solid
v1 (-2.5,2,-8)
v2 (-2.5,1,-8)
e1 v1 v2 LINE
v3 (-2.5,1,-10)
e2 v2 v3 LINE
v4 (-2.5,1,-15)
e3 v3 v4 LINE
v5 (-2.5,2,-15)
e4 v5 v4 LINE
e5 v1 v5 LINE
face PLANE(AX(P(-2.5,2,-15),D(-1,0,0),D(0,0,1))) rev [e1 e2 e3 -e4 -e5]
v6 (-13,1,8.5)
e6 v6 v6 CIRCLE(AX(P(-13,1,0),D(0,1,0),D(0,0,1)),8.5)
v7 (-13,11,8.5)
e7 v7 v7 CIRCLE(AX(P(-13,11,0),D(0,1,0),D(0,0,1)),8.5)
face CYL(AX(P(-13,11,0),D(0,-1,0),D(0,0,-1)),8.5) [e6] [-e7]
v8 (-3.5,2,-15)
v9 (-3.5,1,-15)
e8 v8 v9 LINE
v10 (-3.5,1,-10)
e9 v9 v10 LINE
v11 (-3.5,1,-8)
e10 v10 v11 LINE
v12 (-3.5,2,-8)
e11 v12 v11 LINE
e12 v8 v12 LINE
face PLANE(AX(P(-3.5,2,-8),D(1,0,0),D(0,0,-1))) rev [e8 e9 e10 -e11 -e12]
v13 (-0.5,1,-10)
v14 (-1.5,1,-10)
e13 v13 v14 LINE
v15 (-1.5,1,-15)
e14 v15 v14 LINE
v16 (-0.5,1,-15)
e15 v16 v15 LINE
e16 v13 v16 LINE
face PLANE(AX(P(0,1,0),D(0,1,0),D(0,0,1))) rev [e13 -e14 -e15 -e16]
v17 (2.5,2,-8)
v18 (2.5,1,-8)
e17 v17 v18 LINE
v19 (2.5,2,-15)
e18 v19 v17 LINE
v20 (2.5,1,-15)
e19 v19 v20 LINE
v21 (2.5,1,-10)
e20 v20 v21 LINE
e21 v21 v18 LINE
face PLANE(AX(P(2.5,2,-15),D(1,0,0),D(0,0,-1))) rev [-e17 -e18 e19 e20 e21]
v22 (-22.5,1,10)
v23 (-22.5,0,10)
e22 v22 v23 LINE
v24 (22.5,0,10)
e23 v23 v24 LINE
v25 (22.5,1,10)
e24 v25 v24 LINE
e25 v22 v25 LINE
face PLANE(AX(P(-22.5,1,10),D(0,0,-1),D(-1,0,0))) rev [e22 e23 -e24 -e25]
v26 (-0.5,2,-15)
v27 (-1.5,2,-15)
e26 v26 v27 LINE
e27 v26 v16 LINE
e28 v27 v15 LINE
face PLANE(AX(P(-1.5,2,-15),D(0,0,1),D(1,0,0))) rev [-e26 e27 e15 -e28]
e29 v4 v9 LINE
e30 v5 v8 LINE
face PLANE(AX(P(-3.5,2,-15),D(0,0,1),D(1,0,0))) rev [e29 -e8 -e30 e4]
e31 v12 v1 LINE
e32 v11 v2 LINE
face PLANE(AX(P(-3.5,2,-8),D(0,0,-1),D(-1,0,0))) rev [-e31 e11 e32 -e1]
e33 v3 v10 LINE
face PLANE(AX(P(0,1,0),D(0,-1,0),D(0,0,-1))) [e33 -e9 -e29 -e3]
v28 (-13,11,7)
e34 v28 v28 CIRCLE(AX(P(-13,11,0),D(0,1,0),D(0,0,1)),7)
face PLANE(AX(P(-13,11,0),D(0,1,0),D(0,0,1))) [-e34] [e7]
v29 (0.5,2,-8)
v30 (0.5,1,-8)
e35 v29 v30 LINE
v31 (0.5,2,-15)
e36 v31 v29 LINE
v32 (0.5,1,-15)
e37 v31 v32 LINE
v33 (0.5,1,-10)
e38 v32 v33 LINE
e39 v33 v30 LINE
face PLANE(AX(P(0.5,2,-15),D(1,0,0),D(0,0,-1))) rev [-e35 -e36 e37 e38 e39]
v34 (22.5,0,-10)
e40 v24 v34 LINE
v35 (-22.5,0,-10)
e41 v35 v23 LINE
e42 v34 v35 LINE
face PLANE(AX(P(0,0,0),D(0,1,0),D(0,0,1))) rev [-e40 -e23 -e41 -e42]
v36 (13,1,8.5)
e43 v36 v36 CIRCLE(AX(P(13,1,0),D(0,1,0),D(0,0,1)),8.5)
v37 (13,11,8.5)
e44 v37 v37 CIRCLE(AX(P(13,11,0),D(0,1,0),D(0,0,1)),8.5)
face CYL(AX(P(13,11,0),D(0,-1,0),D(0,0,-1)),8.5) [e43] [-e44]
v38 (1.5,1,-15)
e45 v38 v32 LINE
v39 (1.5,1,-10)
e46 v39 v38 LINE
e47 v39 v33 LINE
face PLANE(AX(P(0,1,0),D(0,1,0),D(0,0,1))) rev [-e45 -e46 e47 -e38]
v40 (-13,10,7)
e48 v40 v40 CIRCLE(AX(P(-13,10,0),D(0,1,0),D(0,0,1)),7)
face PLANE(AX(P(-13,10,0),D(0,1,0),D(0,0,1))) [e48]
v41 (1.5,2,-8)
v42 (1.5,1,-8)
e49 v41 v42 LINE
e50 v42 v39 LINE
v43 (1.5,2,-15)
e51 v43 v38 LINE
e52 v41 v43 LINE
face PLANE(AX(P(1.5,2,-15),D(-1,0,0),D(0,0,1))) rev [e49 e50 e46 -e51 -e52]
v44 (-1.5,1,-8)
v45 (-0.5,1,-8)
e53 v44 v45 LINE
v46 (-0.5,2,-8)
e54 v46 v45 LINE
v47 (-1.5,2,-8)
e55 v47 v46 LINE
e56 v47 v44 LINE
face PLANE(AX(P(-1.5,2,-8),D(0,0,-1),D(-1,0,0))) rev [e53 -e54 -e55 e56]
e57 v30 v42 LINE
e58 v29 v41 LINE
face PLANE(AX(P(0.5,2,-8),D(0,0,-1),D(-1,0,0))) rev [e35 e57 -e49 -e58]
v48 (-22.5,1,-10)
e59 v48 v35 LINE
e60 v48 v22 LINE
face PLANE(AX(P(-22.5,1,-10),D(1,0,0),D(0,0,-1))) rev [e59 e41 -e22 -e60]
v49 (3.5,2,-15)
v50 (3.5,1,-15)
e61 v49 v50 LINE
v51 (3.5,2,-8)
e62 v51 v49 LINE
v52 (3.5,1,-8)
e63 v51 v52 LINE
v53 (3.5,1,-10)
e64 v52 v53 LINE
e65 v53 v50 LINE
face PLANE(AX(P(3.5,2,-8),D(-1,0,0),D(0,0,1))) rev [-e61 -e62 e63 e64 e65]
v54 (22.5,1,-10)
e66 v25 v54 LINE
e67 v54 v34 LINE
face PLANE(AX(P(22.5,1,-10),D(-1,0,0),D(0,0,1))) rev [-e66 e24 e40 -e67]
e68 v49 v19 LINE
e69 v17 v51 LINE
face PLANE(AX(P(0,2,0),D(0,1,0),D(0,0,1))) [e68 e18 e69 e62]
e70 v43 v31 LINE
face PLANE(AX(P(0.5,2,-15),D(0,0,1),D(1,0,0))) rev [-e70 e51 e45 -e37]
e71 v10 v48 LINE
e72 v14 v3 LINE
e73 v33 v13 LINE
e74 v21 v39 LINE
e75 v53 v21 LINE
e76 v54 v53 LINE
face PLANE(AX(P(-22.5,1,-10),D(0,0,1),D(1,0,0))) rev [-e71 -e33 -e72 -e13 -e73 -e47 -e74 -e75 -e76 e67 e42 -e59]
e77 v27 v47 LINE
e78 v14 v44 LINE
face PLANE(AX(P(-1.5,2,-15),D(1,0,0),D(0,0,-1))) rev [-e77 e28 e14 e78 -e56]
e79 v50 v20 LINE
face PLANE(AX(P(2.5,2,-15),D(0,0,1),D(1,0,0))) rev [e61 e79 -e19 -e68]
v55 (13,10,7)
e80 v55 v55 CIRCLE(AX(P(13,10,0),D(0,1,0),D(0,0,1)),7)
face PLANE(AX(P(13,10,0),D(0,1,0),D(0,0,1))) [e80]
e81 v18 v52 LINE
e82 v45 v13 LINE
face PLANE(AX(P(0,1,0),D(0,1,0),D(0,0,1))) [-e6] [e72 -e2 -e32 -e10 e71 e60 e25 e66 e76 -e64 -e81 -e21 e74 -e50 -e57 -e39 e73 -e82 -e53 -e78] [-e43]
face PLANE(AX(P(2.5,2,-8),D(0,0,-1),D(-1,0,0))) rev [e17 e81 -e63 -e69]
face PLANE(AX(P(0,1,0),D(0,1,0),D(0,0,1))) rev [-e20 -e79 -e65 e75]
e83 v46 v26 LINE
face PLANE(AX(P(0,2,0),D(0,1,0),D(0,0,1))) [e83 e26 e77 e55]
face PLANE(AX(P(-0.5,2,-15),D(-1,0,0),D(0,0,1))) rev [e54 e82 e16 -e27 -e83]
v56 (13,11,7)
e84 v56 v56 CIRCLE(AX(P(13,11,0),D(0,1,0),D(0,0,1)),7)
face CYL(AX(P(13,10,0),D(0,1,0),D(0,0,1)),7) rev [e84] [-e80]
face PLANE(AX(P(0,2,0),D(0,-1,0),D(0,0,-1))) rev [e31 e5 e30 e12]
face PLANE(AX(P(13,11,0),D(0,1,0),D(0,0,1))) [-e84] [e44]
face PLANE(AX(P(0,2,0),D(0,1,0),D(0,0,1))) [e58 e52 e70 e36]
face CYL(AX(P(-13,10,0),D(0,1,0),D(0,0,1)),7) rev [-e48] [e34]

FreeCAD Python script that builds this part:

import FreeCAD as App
import Part
import Sketcher
from FreeCAD import Vector
Q = App.Units.Quantity


def add_polygon(sketch, points):
    """Adds a closed chain of lines whose ends are joined by coincident constraints."""
    first, n = sketch.GeometryCount, len(points)
    for a, b in zip(points, points[1:] + points[:1]):
        sketch.addGeometry(Part.LineSegment(App.Vector(*a, 0), App.Vector(*b, 0)), False)
    for i in range(n):
        sketch.addConstraint(Sketcher.Constraint("Coincident", first + i, 2, first + (i + 1) % n, 1))

doc = App.newDocument("Part")
params = doc.addObject("Spreadsheet::Sheet", "Params")
for row, (alias, value) in enumerate([
    ("sketch1_width", "45 mm"),
    ("sketch1_height", "20 mm"),
    ("pad1_length", "1 mm"),
    ("sketch2_diameter", "17 mm"),
    ("pad2_length", "10 mm"),
    ("sketch3_diameter", "14 mm"),
    ("pocket1_length", "1 mm"),
    ("sketch4_width", "1 mm"),
    ("sketch4_height", "7 mm"),
    ("pad3_length", "1 mm"),
], start=1):
    params.set(f"A{row}", alias)
    params.set(f"B{row}", "=" + value)
    params.setAlias(f"B{row}", alias)

body = doc.addObject("PartDesign::Body", "Body")

sketch1 = body.newObject("Sketcher::SketchObject", "Sketch")
sketch1.AttachmentSupport = (doc.getObject("XZ_Plane"), [""])
sketch1.MapMode = "FlatFace"
add_polygon(sketch1, [(-22.5, -10), (-22.5, 10), (22.5, 10), (22.5, -10)])
sketch1.addConstraint([
    Sketcher.Constraint("Vertical", 0),
    Sketcher.Constraint("Horizontal", 1),
    Sketcher.Constraint("Vertical", 2),
    Sketcher.Constraint("Horizontal", 3),
    Sketcher.Constraint("Symmetric", 0, 2, 2, 2, -1, 1),
    Sketcher.Constraint("DistanceX", 1, 1, 1, 2, Q("45 mm")),
    Sketcher.Constraint("DistanceY", 0, 1, 0, 2, Q("20 mm")),
])
sketch1.setExpression("Constraints[9]", "Params.sketch1_width")
sketch1.setExpression("Constraints[10]", "Params.sketch1_height")
pad1 = body.newObject("PartDesign::Pad", "Pad")
pad1.Profile = sketch1
pad1.setExpression("Length", "Params.pad1_length")
pad1.Reversed = True

sketch2 = body.newObject("Sketcher::SketchObject", "Sketch001")
sketch2.AttachmentSupport = (doc.getObject("XZ_Plane"), [""])
sketch2.MapMode = "FlatFace"
sketch2.AttachmentOffset = App.Placement(Vector(0, 0, -1), App.Rotation())
sketch2.addGeometry([
    Part.Circle(Vector(-13, 0, 0), Vector(0, 0, 1), 8.5),
    Part.Circle(Vector(13, 0, 0), Vector(0, 0, 1), 8.5),
], False)
sketch2.addConstraint([
    Sketcher.Constraint("Equal", 0, 1),
    Sketcher.Constraint("Symmetric", 0, 3, 1, 3, -1, 1),
    Sketcher.Constraint("PointOnObject", 0, 3, -1),
    Sketcher.Constraint("Diameter", 0, Q("17 mm")),
    Sketcher.Constraint("DistanceX", 0, 3, -1, 1, Q("13 mm")),
])
sketch2.setExpression("Constraints[3]", "Params.sketch2_diameter")
pad2 = body.newObject("PartDesign::Pad", "Pad001")
pad2.Profile = sketch2
pad2.setExpression("Length", "Params.pad2_length")
pad2.Reversed = True

sketch3 = body.newObject("Sketcher::SketchObject", "Sketch002")
sketch3.AttachmentSupport = (doc.getObject("XZ_Plane"), [""])
sketch3.MapMode = "FlatFace"
sketch3.AttachmentOffset = App.Placement(Vector(0, 0, -11), App.Rotation())
sketch3.addGeometry([
    Part.Circle(Vector(-13, 0, 0), Vector(0, 0, 1), 7),
    Part.Circle(Vector(13, 0, 0), Vector(0, 0, 1), 7),
], False)
sketch3.addConstraint([
    Sketcher.Constraint("Equal", 0, 1),
    Sketcher.Constraint("Symmetric", 0, 3, 1, 3, -1, 1),
    Sketcher.Constraint("PointOnObject", 0, 3, -1),
    Sketcher.Constraint("Diameter", 0, Q("14 mm")),
    Sketcher.Constraint("DistanceX", 0, 3, -1, 1, Q("13 mm")),
])
sketch3.setExpression("Constraints[3]", "Params.sketch3_diameter")
pocket1 = body.newObject("PartDesign::Pocket", "Pocket")
pocket1.Profile = sketch3
pocket1.setExpression("Length", "Params.pocket1_length")
pocket1.Reversed = True

sketch4 = body.newObject("Sketcher::SketchObject", "Sketch003")
sketch4.AttachmentSupport = (doc.getObject("XZ_Plane"), [""])
sketch4.MapMode = "FlatFace"
sketch4.AttachmentOffset = App.Placement(Vector(0, 0, -1), App.Rotation())
add_polygon(sketch4, [(-1.5, -15), (-1.5, -8), (-0.5, -8), (-0.5, -15)])
add_polygon(sketch4, [(-3.5, -15), (-3.5, -8), (-2.5, -8), (-2.5, -15)])
add_polygon(sketch4, [(2.5, -15), (2.5, -8), (3.5, -8), (3.5, -15)])
add_polygon(sketch4, [(0.5, -15), (0.5, -8), (1.5, -8), (1.5, -15)])
sketch4.addConstraint([
    Sketcher.Constraint("Vertical", 0),
    Sketcher.Constraint("Horizontal", 1),
    Sketcher.Constraint("Vertical", 2),
    Sketcher.Constraint("Horizontal", 3),
    Sketcher.Constraint("Vertical", 4),
    Sketcher.Constraint("Horizontal", 5),
    Sketcher.Constraint("Vertical", 6),
    Sketcher.Constraint("Horizontal", 7),
    Sketcher.Constraint("Vertical", 8),
    Sketcher.Constraint("Horizontal", 9),
    Sketcher.Constraint("Vertical", 10),
    Sketcher.Constraint("Horizontal", 11),
    Sketcher.Constraint("Vertical", 12),
    Sketcher.Constraint("Horizontal", 13),
    Sketcher.Constraint("Vertical", 14),
    Sketcher.Constraint("Horizontal", 15),
    Sketcher.Constraint("Symmetric", 5, 2, 8, 2, -2),
    Sketcher.Constraint("Symmetric", 7, 2, 10, 2, -2),
    Sketcher.Constraint("Symmetric", 1, 2, 12, 2, -2),
    Sketcher.Constraint("Symmetric", 3, 2, 14, 2, -2),
    Sketcher.Constraint("Horizontal", 1, 2, 4, 2),
    Sketcher.Constraint("Horizontal", 3, 2, 6, 2),
    Sketcher.Constraint("Equal", 3, 5),
    Sketcher.Constraint("DistanceX", 1, 1, 1, 2, Q("1 mm")),
    Sketcher.Constraint("DistanceY", 0, 1, 0, 2, Q("7 mm")),
    Sketcher.Constraint("DistanceY", 0, 2, -1, 1, Q("8 mm")),
    Sketcher.Constraint("DistanceX", 4, 2, 0, 2, Q("2 mm")),
    Sketcher.Constraint("DistanceX", 1, 2, 8, 2, Q("3 mm")),
])
sketch4.setExpression("Constraints[39]", "Params.sketch4_width")
sketch4.setExpression("Constraints[40]", "Params.sketch4_height")
pad3 = body.newObject("PartDesign::Pad", "Pad002")
pad3.Profile = sketch4
pad3.setExpression("Length", "Params.pad3_length")
pad3.Reversed = True

doc.recompute()
